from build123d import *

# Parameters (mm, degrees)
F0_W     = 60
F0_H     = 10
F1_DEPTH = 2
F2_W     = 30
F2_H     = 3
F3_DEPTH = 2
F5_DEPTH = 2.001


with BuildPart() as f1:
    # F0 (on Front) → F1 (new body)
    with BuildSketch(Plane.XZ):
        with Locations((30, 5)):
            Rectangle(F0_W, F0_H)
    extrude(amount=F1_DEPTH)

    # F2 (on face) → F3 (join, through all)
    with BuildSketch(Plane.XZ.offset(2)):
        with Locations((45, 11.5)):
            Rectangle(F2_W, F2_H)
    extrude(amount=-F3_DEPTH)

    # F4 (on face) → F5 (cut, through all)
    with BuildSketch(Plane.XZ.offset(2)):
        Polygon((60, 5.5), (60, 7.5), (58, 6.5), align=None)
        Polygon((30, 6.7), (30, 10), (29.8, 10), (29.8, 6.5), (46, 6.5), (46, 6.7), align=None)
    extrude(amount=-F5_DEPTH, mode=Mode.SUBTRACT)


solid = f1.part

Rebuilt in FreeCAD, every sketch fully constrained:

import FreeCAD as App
import Part
import Sketcher
from FreeCAD import Vector
Q = App.Units.Quantity


def add_polygon(sketch, points):
    """Adds a closed chain of lines whose ends are joined by coincident constraints."""
    first, n = sketch.GeometryCount, len(points)
    for a, b in zip(points, points[1:] + points[:1]):
        sketch.addGeometry(Part.LineSegment(App.Vector(*a, 0), App.Vector(*b, 0)), False)
    for i in range(n):
        sketch.addConstraint(Sketcher.Constraint("Coincident", first + i, 2, first + (i + 1) % n, 1))

doc = App.newDocument("Part")
body = doc.addObject("PartDesign::Body", "Body")

# Sketch on XZ plane
sketch1 = body.newObject("Sketcher::SketchObject", "Sketch")
sketch1.AttachmentSupport = (doc.getObject("XZ_Plane"), [""])
sketch1.MapMode = "FlatFace"
add_polygon(sketch1, [(0, 10), (0, 0), (60, 0), (60, 10)])  # lines 0-3
sketch1.addConstraint([
    Sketcher.Constraint("Vertical", 0),
    Sketcher.Constraint("Horizontal", 1),
    Sketcher.Constraint("Vertical", 2),
    Sketcher.Constraint("Horizontal", 3),
    Sketcher.Constraint("Coincident", 0, 2, -1, 1),
    Sketcher.Constraint("DistanceX", 1, 1, 1, 2, Q("60 mm")),
    Sketcher.Constraint("DistanceY", 0, 2, 0, 1, Q("10 mm")),
])
pad1 = body.newObject("PartDesign::Pad", "Pad")
pad1.Profile = sketch1
pad1.Length = 2

# Sketch on XZ plane
sketch2 = body.newObject("Sketcher::SketchObject", "Sketch001")
sketch2.AttachmentSupport = (doc.getObject("XZ_Plane"), [""])
sketch2.MapMode = "FlatFace"
sketch2.AttachmentOffset = App.Placement(Vector(0, 0, 2), App.Rotation())
add_polygon(sketch2, [(30, 13), (30, 10), (60, 10), (60, 13)])  # lines 0-3
sketch2.addConstraint([
    Sketcher.Constraint("Vertical", 0),
    Sketcher.Constraint("Horizontal", 1),
    Sketcher.Constraint("Vertical", 2),
    Sketcher.Constraint("Horizontal", 3),
    Sketcher.Constraint("DistanceX", 1, 1, 1, 2, Q("30 mm")),
    Sketcher.Constraint("DistanceY", 0, 2, 0, 1, Q("3 mm")),
    Sketcher.Constraint("DistanceX", -1, 1, 0, 2, Q("30 mm")),
    Sketcher.Constraint("DistanceY", -1, 1, 0, 2, Q("10 mm")),
])
pad2 = body.newObject("PartDesign::Pad", "Pad001")
pad2.Profile = sketch2
pad2.Length = 2
pad2.Reversed = True

# Sketch on XZ plane
sketch3 = body.newObject("Sketcher::SketchObject", "Sketch002")
sketch3.AttachmentSupport = (doc.getObject("XZ_Plane"), [""])
sketch3.MapMode = "FlatFace"
sketch3.AttachmentOffset = App.Placement(Vector(0, 0, 2), App.Rotation())
add_polygon(sketch3, [(60, 5.5), (60, 7.5), (58, 6.5)])  # lines 0-2
add_polygon(sketch3, [(30, 6.7), (30, 10), (29.8, 10), (29.8, 6.5), (46, 6.5), (46, 6.7)])  # lines 3-8
sketch3.addConstraint([
    Sketcher.Constraint("Vertical", 0),
    Sketcher.Constraint("Vertical", 3),
    Sketcher.Constraint("Horizontal", 4),
    Sketcher.Constraint("Vertical", 5),
    Sketcher.Constraint("Horizontal", 6),
    Sketcher.Constraint("Vertical", 7),
    Sketcher.Constraint("Horizontal", 8),
    Sketcher.Constraint("Horizontal", 1, 2, 5, 2),
    Sketcher.Constraint("Equal", 4, 7),
    Sketcher.Constraint("Equal", 1, 2),
    Sketcher.Constraint("DistanceX", 8, 2, 8, 1, Q("16 mm")),
    Sketcher.Constraint("DistanceY", 0, 1, 0, 2, Q("2 mm")),
    Sketcher.Constraint("DistanceX", 4, 2, 4, 1, Q("0.2 mm")),
    Sketcher.Constraint("DistanceY", 3, 1, 3, 2, Q("3.3 mm")),
    Sketcher.Constraint("DistanceX", -1, 1, 0, 2, Q("60 mm")),
    Sketcher.Constraint("DistanceX", -1, 1, 1, 2, Q("58 mm")),
    Sketcher.Constraint("DistanceX", -1, 1, 3, 2, Q("30 mm")),
    Sketcher.Constraint("DistanceY", -1, 1, 3, 2, Q("10 mm")),
])
pocket1 = body.newObject("PartDesign::Pocket", "Pocket")
pocket1.Profile = sketch3
pocket1.Type = "ThroughAll"

doc.recompute()
